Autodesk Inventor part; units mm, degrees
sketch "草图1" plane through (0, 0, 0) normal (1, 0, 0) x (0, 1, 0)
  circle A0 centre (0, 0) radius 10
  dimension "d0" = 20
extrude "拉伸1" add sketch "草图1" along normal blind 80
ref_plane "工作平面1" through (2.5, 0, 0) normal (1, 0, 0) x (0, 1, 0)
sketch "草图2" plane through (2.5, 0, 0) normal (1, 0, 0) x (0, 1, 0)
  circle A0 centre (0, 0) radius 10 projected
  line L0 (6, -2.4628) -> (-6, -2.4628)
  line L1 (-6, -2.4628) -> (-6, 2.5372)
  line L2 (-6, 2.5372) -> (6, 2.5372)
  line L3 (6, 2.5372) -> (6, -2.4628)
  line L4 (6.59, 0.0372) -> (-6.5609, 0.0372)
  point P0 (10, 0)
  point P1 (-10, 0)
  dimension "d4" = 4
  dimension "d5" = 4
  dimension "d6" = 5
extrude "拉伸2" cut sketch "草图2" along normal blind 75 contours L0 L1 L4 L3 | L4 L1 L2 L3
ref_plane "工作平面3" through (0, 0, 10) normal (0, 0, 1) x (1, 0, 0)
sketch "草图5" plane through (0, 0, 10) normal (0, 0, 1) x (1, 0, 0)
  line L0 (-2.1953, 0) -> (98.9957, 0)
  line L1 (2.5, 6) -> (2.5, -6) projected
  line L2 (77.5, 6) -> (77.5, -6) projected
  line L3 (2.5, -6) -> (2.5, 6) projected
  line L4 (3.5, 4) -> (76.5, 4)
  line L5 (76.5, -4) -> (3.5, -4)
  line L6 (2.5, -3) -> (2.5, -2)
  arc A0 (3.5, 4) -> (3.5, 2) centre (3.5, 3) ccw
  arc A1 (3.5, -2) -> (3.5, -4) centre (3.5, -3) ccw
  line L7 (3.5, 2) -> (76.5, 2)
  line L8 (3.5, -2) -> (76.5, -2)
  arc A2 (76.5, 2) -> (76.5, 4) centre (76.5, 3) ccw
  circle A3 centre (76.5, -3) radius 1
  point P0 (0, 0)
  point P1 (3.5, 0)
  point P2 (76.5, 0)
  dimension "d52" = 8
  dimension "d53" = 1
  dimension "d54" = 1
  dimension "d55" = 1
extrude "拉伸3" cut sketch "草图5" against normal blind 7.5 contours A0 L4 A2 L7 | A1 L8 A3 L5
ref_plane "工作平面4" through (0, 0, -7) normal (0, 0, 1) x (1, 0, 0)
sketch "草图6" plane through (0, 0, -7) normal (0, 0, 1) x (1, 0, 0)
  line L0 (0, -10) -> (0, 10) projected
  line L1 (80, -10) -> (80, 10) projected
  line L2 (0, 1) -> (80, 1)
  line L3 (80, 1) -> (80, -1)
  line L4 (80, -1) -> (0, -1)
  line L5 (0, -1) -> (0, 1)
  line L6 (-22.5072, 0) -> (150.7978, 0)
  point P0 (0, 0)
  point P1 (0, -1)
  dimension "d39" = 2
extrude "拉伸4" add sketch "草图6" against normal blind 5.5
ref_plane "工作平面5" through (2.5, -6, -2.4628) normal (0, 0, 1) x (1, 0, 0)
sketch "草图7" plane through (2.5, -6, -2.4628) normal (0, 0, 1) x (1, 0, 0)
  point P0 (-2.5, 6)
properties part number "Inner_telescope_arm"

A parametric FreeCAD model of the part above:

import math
import FreeCAD as App
import Part
import Sketcher

V = App.Vector


def add_polygon(sketch, points):
    """Adds a closed chain of lines whose ends are joined by coincident constraints."""
    first, n = sketch.GeometryCount, len(points)
    for a, b in zip(points, points[1:] + points[:1]):
        sketch.addGeometry(Part.LineSegment(App.Vector(*a, 0), App.Vector(*b, 0)), False)
    for i in range(n):
        sketch.addConstraint(Sketcher.Constraint("Coincident", first + i, 2, first + (i + 1) % n, 1))

doc = App.newDocument("Part")
body = doc.addObject("PartDesign::Body", "Body")

# Sketch on YZ plane
sketch1 = body.newObject("Sketcher::SketchObject", "Sketch")
sketch1.AttachmentSupport = (doc.getObject("YZ_Plane"), [""])
sketch1.MapMode = "FlatFace"
sketch1.addGeometry(Part.Circle(V(0, 0, 0), V(0, 0, 1), 10), False)
sketch1.addConstraint([
    Sketcher.Constraint("Coincident", 0, 3, -1, 1),
    Sketcher.Constraint("Diameter", 0, 20.0),
])
pad1 = body.newObject("PartDesign::Pad", "Pad")
pad1.Profile = sketch1
pad1.Length = 80

# Sketch on YZ plane
sketch2 = body.newObject("Sketcher::SketchObject", "Sketch001")
sketch2.AttachmentSupport = (doc.getObject("YZ_Plane"), [""])
sketch2.MapMode = "FlatFace"
sketch2.AttachmentOffset = App.Placement(V(0, 0, 2.5), App.Rotation())
add_polygon(sketch2, [(-6, -2), (6, -2), (6, 3), (-6, 3)])  # lines 0-3
sketch2.addConstraint([
    Sketcher.Constraint("Horizontal", 0),
    Sketcher.Constraint("Vertical", 1),
    Sketcher.Constraint("Horizontal", 2),
    Sketcher.Constraint("Vertical", 3),
    Sketcher.Constraint("DistanceY", 1, 1, 1, 2, 5.0),
    Sketcher.Constraint("DistanceX", 0, 1, 0, 2, 12.0),
    Sketcher.Constraint("DistanceX", -1, 1, 0, 2, 6.0),
    Sketcher.Constraint("DistanceY", 0, 2, -1, 1, 2.4628),
])
pocket1 = body.newObject("PartDesign::Pocket", "Pocket")
pocket1.Profile = sketch2
pocket1.Length = 75
pocket1.Reversed = True

# Sketch on XY plane
sketch3 = body.newObject("Sketcher::SketchObject", "Sketch002")
sketch3.AttachmentSupport = (doc.getObject("XY_Plane"), [""])
sketch3.MapMode = "FlatFace"
sketch3.AttachmentOffset = App.Placement(V(0, 0, 10), App.Rotation())
sketch3.addGeometry([
    Part.ArcOfCircle(Part.Circle(V(3.5, 3, 0), V(0, 0, 1), 1), math.radians(90), math.radians(270)),  # 0
    Part.LineSegment(V(3.5, 2, 0), V(76.5, 2, 0)),  # 1
    Part.ArcOfCircle(Part.Circle(V(76.5, 3, 0), V(0, 0, 1), 1), math.radians(-90), math.radians(90)),  # 2
    Part.LineSegment(V(76.5, 4, 0), V(3.5, 4, 0)),  # 3
    Part.ArcOfCircle(Part.Circle(V(3.5, -3, 0), V(0, 0, 1), 1), math.radians(90), math.radians(270)),  # 4
    Part.LineSegment(V(3.5, -4, 0), V(76.5, -4, 0)),  # 5
    Part.ArcOfCircle(Part.Circle(V(76.5, -3, 0), V(0, 0, 1), 1), math.radians(90), math.radians(270)),  # 6
    Part.LineSegment(V(76.5, -2, 0), V(3.5, -2, 0)),  # 7
], False)
sketch3.addConstraint([
    Sketcher.Constraint("Tangent", 0, 2, 1, 1),
    Sketcher.Constraint("Tangent", 1, 2, 2, 1),
    Sketcher.Constraint("Tangent", 2, 2, 3, 1),
    Sketcher.Constraint("Tangent", 3, 2, 0, 1),
    Sketcher.Constraint("Tangent", 4, 2, 5, 1),
    Sketcher.Constraint("Tangent", 5, 2, 6, 2),
    Sketcher.Constraint("Tangent", 6, 1, 7, 1),
    Sketcher.Constraint("Tangent", 7, 2, 4, 1),
    Sketcher.Constraint("Horizontal", 1),
    Sketcher.Constraint("Horizontal", 3),
    Sketcher.Constraint("Horizontal", 5),
    Sketcher.Constraint("Horizontal", 7),
    Sketcher.Constraint("Equal", 2, 4),
    Sketcher.Constraint("Symmetric", 0, 3, 4, 3, -1),
    Sketcher.Constraint("Vertical", 2, 3, 6, 3),
    Sketcher.Constraint("Radius", 0, 1.0),
    Sketcher.Constraint("DistanceY", 4, 2, 3, 2, 8.0),
    Sketcher.Constraint("DistanceX", 1, 1, 1, 2, 73.0),
    Sketcher.Constraint("DistanceX", -1, 1, 0, 3, 3.5),
])
pocket2 = body.newObject("PartDesign::Pocket", "Pocket001")
pocket2.Profile = sketch3
pocket2.Length = 7.5

# Sketch on XY plane
sketch4 = body.newObject("Sketcher::SketchObject", "Sketch003")
sketch4.AttachmentSupport = (doc.getObject("XY_Plane"), [""])
sketch4.MapMode = "FlatFace"
sketch4.AttachmentOffset = App.Placement(V(0, 0, -7), App.Rotation())
add_polygon(sketch4, [(0, -1), (80, -1), (80, 1), (0, 1)])  # lines 0-3
sketch4.addConstraint([
    Sketcher.Constraint("Horizontal", 0),
    Sketcher.Constraint("Vertical", 1),
    Sketcher.Constraint("Horizontal", 2),
    Sketcher.Constraint("Vertical", 3),
    Sketcher.Constraint("Symmetric", 2, 2, 3, 2, -1, 1),
    Sketcher.Constraint("DistanceY", 1, 1, 1, 2, 2.0),
    Sketcher.Constraint("DistanceX", 0, 1, 0, 2, 80.0),
])
pad2 = body.newObject("PartDesign::Pad", "Pad001")
pad2.Profile = sketch4
pad2.Length = 5.5
pad2.Reversed = True

doc.recompute()
